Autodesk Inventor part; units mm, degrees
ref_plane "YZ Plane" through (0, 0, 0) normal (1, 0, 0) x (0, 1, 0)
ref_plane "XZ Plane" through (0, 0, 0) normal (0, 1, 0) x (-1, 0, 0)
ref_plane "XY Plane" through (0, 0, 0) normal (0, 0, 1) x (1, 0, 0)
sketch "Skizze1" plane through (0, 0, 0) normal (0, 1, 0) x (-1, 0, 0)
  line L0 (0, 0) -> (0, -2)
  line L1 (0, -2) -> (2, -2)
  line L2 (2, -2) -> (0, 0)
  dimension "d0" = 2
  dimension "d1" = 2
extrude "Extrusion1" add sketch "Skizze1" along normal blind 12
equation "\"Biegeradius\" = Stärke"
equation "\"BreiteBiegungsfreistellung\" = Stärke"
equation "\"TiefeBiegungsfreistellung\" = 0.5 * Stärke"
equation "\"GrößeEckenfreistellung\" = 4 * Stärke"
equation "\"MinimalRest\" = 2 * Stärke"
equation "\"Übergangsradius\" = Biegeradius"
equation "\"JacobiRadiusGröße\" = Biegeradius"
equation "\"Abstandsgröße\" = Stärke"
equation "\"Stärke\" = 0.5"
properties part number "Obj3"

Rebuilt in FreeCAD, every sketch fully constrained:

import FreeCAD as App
import Part
import Sketcher
Q = App.Units.Quantity


def add_polygon(sketch, points):
    """Adds a closed chain of lines whose ends are joined by coincident constraints."""
    first, n = sketch.GeometryCount, len(points)
    for a, b in zip(points, points[1:] + points[:1]):
        sketch.addGeometry(Part.LineSegment(App.Vector(*a, 0), App.Vector(*b, 0)), False)
    for i in range(n):
        sketch.addConstraint(Sketcher.Constraint("Coincident", first + i, 2, first + (i + 1) % n, 1))

doc = App.newDocument("Part")
body = doc.addObject("PartDesign::Body", "Body")

# Sketch on XZ plane
sketch1 = body.newObject("Sketcher::SketchObject", "Sketch")
sketch1.AttachmentSupport = (doc.getObject("XZ_Plane"), [""])
sketch1.MapMode = "FlatFace"
add_polygon(sketch1, [(-2, -2), (0, 0), (0, -2)])  # lines 0-2
sketch1.addConstraint([
    Sketcher.Constraint("Vertical", 1),
    Sketcher.Constraint("Horizontal", 2),
    Sketcher.Constraint("Coincident", 0, 2, -1, 1),
    Sketcher.Constraint("Equal", 2, 1),
    Sketcher.Constraint("DistanceX", 2, 2, 2, 1, Q("2 mm")),
])
pad1 = body.newObject("PartDesign::Pad", "Pad")
pad1.Profile = sketch1
pad1.Length = 12
pad1.Reversed = True

doc.recompute()
